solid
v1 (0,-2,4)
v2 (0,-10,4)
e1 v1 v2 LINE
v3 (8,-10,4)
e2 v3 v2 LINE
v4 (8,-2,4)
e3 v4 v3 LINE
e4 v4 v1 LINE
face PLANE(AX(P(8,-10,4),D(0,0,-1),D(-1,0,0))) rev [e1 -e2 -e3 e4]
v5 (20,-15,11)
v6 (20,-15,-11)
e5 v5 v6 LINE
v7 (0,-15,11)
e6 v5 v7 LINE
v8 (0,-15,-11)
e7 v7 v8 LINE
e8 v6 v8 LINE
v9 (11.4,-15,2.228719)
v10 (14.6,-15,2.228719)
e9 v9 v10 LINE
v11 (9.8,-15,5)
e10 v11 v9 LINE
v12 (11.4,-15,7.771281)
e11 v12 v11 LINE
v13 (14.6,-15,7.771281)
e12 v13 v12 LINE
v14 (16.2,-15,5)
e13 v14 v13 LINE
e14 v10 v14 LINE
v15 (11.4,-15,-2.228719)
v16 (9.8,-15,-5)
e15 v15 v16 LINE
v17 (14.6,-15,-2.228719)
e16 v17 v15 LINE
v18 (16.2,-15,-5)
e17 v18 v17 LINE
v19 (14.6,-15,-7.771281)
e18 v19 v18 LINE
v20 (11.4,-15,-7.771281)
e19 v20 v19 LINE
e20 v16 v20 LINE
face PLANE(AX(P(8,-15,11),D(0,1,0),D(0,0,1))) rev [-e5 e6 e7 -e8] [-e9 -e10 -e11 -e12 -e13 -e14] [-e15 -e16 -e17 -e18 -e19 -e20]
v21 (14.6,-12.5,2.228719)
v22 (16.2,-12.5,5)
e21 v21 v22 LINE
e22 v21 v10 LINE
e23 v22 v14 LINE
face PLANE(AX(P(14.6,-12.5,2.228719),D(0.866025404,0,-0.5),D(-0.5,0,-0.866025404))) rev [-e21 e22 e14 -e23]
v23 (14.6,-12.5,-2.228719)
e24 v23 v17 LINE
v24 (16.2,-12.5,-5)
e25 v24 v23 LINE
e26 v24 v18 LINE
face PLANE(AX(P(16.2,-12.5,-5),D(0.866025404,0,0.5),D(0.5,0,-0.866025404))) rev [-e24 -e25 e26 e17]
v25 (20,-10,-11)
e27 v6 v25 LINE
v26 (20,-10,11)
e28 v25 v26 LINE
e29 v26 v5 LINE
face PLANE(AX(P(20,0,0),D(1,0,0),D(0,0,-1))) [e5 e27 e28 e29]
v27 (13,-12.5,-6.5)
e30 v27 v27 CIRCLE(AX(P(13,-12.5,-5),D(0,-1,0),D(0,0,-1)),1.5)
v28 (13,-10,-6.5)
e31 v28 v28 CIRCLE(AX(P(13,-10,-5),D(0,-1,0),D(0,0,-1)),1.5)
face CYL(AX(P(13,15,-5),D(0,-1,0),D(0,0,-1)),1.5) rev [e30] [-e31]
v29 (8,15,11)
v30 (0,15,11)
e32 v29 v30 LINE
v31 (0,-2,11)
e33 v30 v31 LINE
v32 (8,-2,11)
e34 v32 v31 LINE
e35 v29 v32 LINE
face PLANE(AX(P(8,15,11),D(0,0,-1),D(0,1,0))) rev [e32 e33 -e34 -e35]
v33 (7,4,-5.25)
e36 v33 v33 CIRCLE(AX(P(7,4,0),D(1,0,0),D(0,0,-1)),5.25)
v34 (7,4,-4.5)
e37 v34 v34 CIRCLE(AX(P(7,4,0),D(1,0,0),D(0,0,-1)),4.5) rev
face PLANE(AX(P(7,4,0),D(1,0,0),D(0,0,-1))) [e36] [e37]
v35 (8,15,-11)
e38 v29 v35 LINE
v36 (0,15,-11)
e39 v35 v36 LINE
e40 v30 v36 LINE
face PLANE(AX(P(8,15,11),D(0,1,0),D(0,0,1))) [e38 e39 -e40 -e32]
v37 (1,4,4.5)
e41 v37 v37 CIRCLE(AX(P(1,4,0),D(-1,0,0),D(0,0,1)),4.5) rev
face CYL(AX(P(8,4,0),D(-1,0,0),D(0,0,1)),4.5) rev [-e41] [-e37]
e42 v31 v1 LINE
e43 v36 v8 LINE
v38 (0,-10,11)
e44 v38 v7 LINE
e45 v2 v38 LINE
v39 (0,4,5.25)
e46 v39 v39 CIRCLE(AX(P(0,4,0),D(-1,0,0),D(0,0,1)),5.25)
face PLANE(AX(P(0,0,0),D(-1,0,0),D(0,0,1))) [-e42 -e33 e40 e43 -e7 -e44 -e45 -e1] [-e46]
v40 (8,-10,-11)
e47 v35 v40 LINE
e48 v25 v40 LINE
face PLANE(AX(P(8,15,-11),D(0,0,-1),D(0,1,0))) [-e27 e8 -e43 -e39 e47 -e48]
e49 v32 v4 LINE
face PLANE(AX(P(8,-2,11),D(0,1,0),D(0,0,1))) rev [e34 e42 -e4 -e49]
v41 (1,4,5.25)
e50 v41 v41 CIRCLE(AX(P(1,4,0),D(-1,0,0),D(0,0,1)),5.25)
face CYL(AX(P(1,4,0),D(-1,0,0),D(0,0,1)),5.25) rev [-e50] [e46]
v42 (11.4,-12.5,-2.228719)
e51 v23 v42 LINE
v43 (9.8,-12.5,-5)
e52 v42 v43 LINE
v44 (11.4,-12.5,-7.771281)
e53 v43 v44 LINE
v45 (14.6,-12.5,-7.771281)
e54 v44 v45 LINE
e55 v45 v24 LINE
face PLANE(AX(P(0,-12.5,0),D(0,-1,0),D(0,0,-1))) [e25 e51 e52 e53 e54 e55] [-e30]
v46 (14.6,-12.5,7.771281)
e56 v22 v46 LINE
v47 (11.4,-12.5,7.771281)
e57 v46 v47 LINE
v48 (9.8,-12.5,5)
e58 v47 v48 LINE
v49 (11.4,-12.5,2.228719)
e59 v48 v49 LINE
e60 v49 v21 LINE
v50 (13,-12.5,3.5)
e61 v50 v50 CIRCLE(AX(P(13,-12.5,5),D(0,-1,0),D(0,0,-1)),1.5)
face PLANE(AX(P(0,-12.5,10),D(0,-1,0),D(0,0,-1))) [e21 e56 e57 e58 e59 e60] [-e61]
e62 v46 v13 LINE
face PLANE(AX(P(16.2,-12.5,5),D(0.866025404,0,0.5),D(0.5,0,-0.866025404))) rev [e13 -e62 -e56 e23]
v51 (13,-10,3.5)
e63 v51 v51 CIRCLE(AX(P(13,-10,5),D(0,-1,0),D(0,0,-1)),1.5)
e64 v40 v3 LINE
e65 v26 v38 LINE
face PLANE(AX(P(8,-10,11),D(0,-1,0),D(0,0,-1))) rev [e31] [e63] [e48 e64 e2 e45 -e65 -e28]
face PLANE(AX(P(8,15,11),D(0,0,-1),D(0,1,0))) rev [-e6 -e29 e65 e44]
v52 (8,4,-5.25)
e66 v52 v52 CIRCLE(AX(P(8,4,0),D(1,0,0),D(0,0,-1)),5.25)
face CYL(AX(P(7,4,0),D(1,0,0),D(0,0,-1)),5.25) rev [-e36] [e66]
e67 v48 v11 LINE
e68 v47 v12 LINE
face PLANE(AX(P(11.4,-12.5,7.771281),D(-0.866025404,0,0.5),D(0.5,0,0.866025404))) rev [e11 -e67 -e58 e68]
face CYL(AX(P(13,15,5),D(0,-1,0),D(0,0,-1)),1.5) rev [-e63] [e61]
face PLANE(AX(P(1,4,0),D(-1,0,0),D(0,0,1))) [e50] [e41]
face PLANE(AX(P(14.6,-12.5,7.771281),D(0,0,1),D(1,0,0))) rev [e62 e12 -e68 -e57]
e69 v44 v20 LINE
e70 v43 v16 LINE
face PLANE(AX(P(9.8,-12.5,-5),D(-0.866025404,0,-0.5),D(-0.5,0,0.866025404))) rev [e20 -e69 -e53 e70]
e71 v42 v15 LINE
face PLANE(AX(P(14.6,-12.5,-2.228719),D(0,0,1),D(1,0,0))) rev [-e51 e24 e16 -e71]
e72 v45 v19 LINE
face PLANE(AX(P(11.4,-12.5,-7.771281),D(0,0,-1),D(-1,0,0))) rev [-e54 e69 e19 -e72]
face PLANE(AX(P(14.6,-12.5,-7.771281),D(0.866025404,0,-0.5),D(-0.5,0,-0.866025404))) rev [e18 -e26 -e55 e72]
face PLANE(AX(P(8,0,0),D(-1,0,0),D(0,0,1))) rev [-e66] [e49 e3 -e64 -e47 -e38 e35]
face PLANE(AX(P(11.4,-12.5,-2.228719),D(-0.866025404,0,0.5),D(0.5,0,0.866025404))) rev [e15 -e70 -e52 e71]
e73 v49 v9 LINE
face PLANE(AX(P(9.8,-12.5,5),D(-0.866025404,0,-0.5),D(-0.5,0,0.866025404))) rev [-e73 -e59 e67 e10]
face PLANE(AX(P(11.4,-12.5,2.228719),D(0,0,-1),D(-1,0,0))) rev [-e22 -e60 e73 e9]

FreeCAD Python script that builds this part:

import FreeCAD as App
import Part
import Sketcher

V = App.Vector
Q = App.Units.Quantity


def add_polygon(sketch, points):
    """Adds a closed chain of lines whose ends are joined by coincident constraints."""
    first, n = sketch.GeometryCount, len(points)
    for a, b in zip(points, points[1:] + points[:1]):
        sketch.addGeometry(Part.LineSegment(App.Vector(*a, 0), App.Vector(*b, 0)), False)
    for i in range(n):
        sketch.addConstraint(Sketcher.Constraint("Coincident", first + i, 2, first + (i + 1) % n, 1))

doc = App.newDocument("Part")
params = doc.addObject("Spreadsheet::Sheet", "Params")
for row, (alias, value) in enumerate([
    ("sketch1_width", "30 mm"),
    ("sketch1_height", "22 mm"),
    ("pad1_length", "8 mm"),
    ("sketch2_diameter", "9 mm"),
    ("sketch3_width", "8 mm"),
    ("sketch3_height", "7 mm"),
    ("sketch4_diameter", "10.5 mm"),
    ("pocket3_length", "1 mm"),
    ("sketch5_diameter", "10.5 mm"),
    ("pocket4_length", "1 mm"),
    ("sketch6_width", "5 mm"),
    ("sketch6_height", "22 mm"),
    ("pad2_length", "12 mm"),
    ("sketch7_width", "3.2 mm"),
    ("sketch7_length", "3.2 mm"),
    ("pocket5_length", "2.5 mm"),
    ("linearpattern_pitch", "10 mm"),
    ("sketch8_diameter", "3 mm"),
    ("linearpattern2_pitch", "10 mm"),
], start=1):
    params.set(f"A{row}", alias)
    params.set(f"B{row}", "=" + value)
    params.setAlias(f"B{row}", alias)

body = doc.addObject("PartDesign::Body", "Body")

# Sketch on YZ plane
sketch1 = doc.addObject("Sketcher::SketchObject", "Sketch")
body.addObject(sketch1)
sketch1.AttachmentSupport = (doc.YZ_Plane, [""])
sketch1.MapMode = "FlatFace"
add_polygon(sketch1, [(15, 11), (-15, 11), (-15, -11), (15, -11)])  # lines 0-3
sketch1.addConstraint([
    Sketcher.Constraint("Horizontal", 0),
    Sketcher.Constraint("Vertical", 1),
    Sketcher.Constraint("Horizontal", 2),
    Sketcher.Constraint("Vertical", 3),
    Sketcher.Constraint("Symmetric", 0, 2, 2, 2, -1, 1),
    Sketcher.Constraint("DistanceX", 0, 2, 0, 1, 30.0),
    Sketcher.Constraint("DistanceY", 1, 2, 1, 1, 22.0),
])
sketch1.setExpression("Constraints[9]", "Params.sketch1_width")
sketch1.setExpression("Constraints[10]", "Params.sketch1_height")
pad1 = doc.addObject("PartDesign::Pad", "Pad")
body.addObject(pad1)
pad1.Profile = sketch1
pad1.setExpression("Length", "Params.pad1_length")

# Sketch on YZ plane
sketch2 = doc.addObject("Sketcher::SketchObject", "Sketch001")
body.addObject(sketch2)
sketch2.AttachmentSupport = (doc.YZ_Plane, [""])
sketch2.MapMode = "FlatFace"
sketch2.addGeometry(Part.Circle(V(4, 0, 0), V(0, 0, 1), 4.5), False)
sketch2.addConstraint([
    Sketcher.Constraint("PointOnObject", 0, 3, -1),
    Sketcher.Constraint("Diameter", 0, 9.0),
    Sketcher.Constraint("DistanceX", -1, 1, 0, 3, 4.0),
])
sketch2.setExpression("Constraints[1]", "Params.sketch2_diameter")
pocket1 = doc.addObject("PartDesign::Pocket", "Pocket")
body.addObject(pocket1)
pocket1.Profile = sketch2
pocket1.Type = "ThroughAll"
pocket1.Reversed = True

# Sketch on YZ plane
sketch3 = doc.addObject("Sketcher::SketchObject", "Sketch002")
body.addObject(sketch3)
sketch3.AttachmentSupport = (doc.YZ_Plane, [""])
sketch3.MapMode = "FlatFace"
add_polygon(sketch3, [(-2, 4), (-10, 4), (-10, 11), (-2, 11)])  # lines 0-3
sketch3.addConstraint([
    Sketcher.Constraint("Horizontal", 0),
    Sketcher.Constraint("Vertical", 1),
    Sketcher.Constraint("Horizontal", 2),
    Sketcher.Constraint("Vertical", 3),
    Sketcher.Constraint("DistanceX", 0, 2, 0, 1, 8.0),
    Sketcher.Constraint("DistanceY", 1, 1, 1, 2, 7.0),
    Sketcher.Constraint("DistanceX", 0, 2, -1, 1, 10.0),
    Sketcher.Constraint("DistanceY", -1, 1, 0, 2, 4.0),
])
sketch3.setExpression("Constraints[8]", "Params.sketch3_width")
sketch3.setExpression("Constraints[9]", "Params.sketch3_height")
pocket2 = doc.addObject("PartDesign::Pocket", "Pocket001")
body.addObject(pocket2)
pocket2.Profile = sketch3
pocket2.Type = "ThroughAll"
pocket2.Reversed = True

# Sketch on YZ plane
sketch4 = doc.addObject("Sketcher::SketchObject", "Sketch003")
body.addObject(sketch4)
sketch4.AttachmentSupport = (doc.YZ_Plane, [""])
sketch4.MapMode = "FlatFace"
sketch4.addGeometry(Part.Circle(V(4, 0, 0), V(0, 0, 1), 5), False)
sketch4.addConstraint([
    Sketcher.Constraint("PointOnObject", 0, 3, -1),
    Sketcher.Constraint("Diameter", 0, 10.5),
    Sketcher.Constraint("DistanceX", -1, 1, 0, 3, 4.0),
])
sketch4.setExpression("Constraints[1]", "Params.sketch4_diameter")
pocket3 = doc.addObject("PartDesign::Pocket", "Pocket002")
body.addObject(pocket3)
pocket3.Profile = sketch4
pocket3.setExpression("Length", "Params.pocket3_length")
pocket3.Reversed = True

# Sketch on YZ plane
sketch5 = doc.addObject("Sketcher::SketchObject", "Sketch004")
body.addObject(sketch5)
sketch5.AttachmentSupport = (doc.YZ_Plane, [""])
sketch5.MapMode = "FlatFace"
sketch5.AttachmentOffset = App.Placement(V(0, 0, 8), App.Rotation())
sketch5.addGeometry(Part.Circle(V(4, 0, 0), V(0, 0, 1), 5), False)
sketch5.addConstraint([
    Sketcher.Constraint("PointOnObject", 0, 3, -1),
    Sketcher.Constraint("Diameter", 0, 10.5),
    Sketcher.Constraint("DistanceX", -1, 1, 0, 3, 4.0),
])
sketch5.setExpression("Constraints[1]", "Params.sketch5_diameter")
pocket4 = doc.addObject("PartDesign::Pocket", "Pocket003")
body.addObject(pocket4)
pocket4.Profile = sketch5
pocket4.setExpression("Length", "Params.pocket4_length")

# Sketch on YZ plane
sketch6 = doc.addObject("Sketcher::SketchObject", "Sketch005")
body.addObject(sketch6)
sketch6.AttachmentSupport = (doc.YZ_Plane, [""])
sketch6.MapMode = "FlatFace"
sketch6.AttachmentOffset = App.Placement(V(0, 0, 8), App.Rotation())
add_polygon(sketch6, [(-10, 11), (-15, 11), (-15, -11), (-10, -11)])  # lines 0-3
sketch6.addConstraint([
    Sketcher.Constraint("Horizontal", 0),
    Sketcher.Constraint("Vertical", 1),
    Sketcher.Constraint("Horizontal", 2),
    Sketcher.Constraint("Vertical", 3),
    Sketcher.Constraint("DistanceX", 0, 2, 0, 1, 5.0),
    Sketcher.Constraint("DistanceY", 1, 2, 1, 1, 22.0),
    Sketcher.Constraint("DistanceX", 0, 2, -1, 1, 15.0),
    Sketcher.Constraint("DistanceY", -1, 1, 0, 2, 11.0),
])
sketch6.setExpression("Constraints[8]", "Params.sketch6_width")
sketch6.setExpression("Constraints[9]", "Params.sketch6_height")
pad2 = doc.addObject("PartDesign::Pad", "Pad001")
body.addObject(pad2)
pad2.Profile = sketch6
pad2.setExpression("Length", "Params.pad2_length")

# Sketch on XZ plane
sketch7 = doc.addObject("Sketcher::SketchObject", "Sketch006")
body.addObject(sketch7)
sketch7.AttachmentSupport = (doc.XZ_Plane, [""])
sketch7.MapMode = "FlatFace"
sketch7.AttachmentOffset = App.Placement(V(0, 0, 15), App.Rotation())
add_polygon(sketch7, [(9.8, -5), (11.4, -7.8), (14.6, -7.8), (16.2, -5), (14.6, -2.2), (11.4, -2.2)])  # lines 0-5
sketch7.addConstraint([
    Sketcher.Constraint("Horizontal", 1),
    Sketcher.Constraint("Horizontal", 4),
    Sketcher.Constraint("Parallel", 0, 3),
    Sketcher.Constraint("Parallel", 2, 5),
    Sketcher.Constraint("Horizontal", 2, 2, 5, 2),
    Sketcher.Constraint("Vertical", 1, 2, 3, 2),
    Sketcher.Constraint("Vertical", 0, 2, 4, 2),
    Sketcher.Constraint("Angle", 0, Q("-60 deg")),
    Sketcher.Constraint("DistanceX", 1, 1, 1, 2, 3.2),
    Sketcher.Constraint("DistanceY", 2, 2, -1, 1, 5.0),
    Sketcher.Constraint("Distance", 0, 3.2),
    Sketcher.Constraint("DistanceX", -1, 1, 0, 2, 11.4),
])
sketch7.setExpression("Constraints[14]", "Params.sketch7_width")
sketch7.setExpression("Constraints[16]", "Params.sketch7_length")
pocket5 = doc.addObject("PartDesign::Pocket", "Pocket004")
body.addObject(pocket5)
pocket5.Profile = sketch7
pocket5.setExpression("Length", "Params.pocket5_length")
doc.recompute()

linearpattern = doc.addObject("PartDesign::LinearPattern", "LinearPattern")
body.addObject(linearpattern)
linearpattern.Originals = [pocket5]
linearpattern.Direction = (doc.Z_Axis, [""])
linearpattern.Mode = "offset"
linearpattern.setExpression("Offset", "Params.linearpattern_pitch")
linearpattern.Occurrences = 2
body.Tip = linearpattern

# Sketch on XZ plane
sketch8 = doc.addObject("Sketcher::SketchObject", "Sketch007")
body.addObject(sketch8)
sketch8.AttachmentSupport = (doc.XZ_Plane, [""])
sketch8.MapMode = "FlatFace"
sketch8.AttachmentOffset = App.Placement(V(0, 0, 12.5), App.Rotation())
sketch8.addGeometry(Part.Circle(V(13, 5, 0), V(0, 0, 1), 1.5), False)
sketch8.addConstraint([
    Sketcher.Constraint("Diameter", 0, 3.0),
    Sketcher.Constraint("DistanceX", -1, 1, 0, 3, 13.0),
    Sketcher.Constraint("DistanceY", -1, 1, 0, 3, 5.0),
])
sketch8.setExpression("Constraints[0]", "Params.sketch8_diameter")
pocket6 = doc.addObject("PartDesign::Pocket", "Pocket005")
body.addObject(pocket6)
pocket6.Profile = sketch8
pocket6.Type = "ThroughAll"
doc.recompute()

linearpattern2 = doc.addObject("PartDesign::LinearPattern", "LinearPattern001")
body.addObject(linearpattern2)
linearpattern2.Originals = [pocket6]
linearpattern2.Direction = (doc.Z_Axis, [""])
linearpattern2.Mode = "offset"
linearpattern2.setExpression("Offset", "Params.linearpattern2_pitch")
linearpattern2.Occurrences = 2
linearpattern2.Reversed = True
body.Tip = linearpattern2

doc.recompute()
